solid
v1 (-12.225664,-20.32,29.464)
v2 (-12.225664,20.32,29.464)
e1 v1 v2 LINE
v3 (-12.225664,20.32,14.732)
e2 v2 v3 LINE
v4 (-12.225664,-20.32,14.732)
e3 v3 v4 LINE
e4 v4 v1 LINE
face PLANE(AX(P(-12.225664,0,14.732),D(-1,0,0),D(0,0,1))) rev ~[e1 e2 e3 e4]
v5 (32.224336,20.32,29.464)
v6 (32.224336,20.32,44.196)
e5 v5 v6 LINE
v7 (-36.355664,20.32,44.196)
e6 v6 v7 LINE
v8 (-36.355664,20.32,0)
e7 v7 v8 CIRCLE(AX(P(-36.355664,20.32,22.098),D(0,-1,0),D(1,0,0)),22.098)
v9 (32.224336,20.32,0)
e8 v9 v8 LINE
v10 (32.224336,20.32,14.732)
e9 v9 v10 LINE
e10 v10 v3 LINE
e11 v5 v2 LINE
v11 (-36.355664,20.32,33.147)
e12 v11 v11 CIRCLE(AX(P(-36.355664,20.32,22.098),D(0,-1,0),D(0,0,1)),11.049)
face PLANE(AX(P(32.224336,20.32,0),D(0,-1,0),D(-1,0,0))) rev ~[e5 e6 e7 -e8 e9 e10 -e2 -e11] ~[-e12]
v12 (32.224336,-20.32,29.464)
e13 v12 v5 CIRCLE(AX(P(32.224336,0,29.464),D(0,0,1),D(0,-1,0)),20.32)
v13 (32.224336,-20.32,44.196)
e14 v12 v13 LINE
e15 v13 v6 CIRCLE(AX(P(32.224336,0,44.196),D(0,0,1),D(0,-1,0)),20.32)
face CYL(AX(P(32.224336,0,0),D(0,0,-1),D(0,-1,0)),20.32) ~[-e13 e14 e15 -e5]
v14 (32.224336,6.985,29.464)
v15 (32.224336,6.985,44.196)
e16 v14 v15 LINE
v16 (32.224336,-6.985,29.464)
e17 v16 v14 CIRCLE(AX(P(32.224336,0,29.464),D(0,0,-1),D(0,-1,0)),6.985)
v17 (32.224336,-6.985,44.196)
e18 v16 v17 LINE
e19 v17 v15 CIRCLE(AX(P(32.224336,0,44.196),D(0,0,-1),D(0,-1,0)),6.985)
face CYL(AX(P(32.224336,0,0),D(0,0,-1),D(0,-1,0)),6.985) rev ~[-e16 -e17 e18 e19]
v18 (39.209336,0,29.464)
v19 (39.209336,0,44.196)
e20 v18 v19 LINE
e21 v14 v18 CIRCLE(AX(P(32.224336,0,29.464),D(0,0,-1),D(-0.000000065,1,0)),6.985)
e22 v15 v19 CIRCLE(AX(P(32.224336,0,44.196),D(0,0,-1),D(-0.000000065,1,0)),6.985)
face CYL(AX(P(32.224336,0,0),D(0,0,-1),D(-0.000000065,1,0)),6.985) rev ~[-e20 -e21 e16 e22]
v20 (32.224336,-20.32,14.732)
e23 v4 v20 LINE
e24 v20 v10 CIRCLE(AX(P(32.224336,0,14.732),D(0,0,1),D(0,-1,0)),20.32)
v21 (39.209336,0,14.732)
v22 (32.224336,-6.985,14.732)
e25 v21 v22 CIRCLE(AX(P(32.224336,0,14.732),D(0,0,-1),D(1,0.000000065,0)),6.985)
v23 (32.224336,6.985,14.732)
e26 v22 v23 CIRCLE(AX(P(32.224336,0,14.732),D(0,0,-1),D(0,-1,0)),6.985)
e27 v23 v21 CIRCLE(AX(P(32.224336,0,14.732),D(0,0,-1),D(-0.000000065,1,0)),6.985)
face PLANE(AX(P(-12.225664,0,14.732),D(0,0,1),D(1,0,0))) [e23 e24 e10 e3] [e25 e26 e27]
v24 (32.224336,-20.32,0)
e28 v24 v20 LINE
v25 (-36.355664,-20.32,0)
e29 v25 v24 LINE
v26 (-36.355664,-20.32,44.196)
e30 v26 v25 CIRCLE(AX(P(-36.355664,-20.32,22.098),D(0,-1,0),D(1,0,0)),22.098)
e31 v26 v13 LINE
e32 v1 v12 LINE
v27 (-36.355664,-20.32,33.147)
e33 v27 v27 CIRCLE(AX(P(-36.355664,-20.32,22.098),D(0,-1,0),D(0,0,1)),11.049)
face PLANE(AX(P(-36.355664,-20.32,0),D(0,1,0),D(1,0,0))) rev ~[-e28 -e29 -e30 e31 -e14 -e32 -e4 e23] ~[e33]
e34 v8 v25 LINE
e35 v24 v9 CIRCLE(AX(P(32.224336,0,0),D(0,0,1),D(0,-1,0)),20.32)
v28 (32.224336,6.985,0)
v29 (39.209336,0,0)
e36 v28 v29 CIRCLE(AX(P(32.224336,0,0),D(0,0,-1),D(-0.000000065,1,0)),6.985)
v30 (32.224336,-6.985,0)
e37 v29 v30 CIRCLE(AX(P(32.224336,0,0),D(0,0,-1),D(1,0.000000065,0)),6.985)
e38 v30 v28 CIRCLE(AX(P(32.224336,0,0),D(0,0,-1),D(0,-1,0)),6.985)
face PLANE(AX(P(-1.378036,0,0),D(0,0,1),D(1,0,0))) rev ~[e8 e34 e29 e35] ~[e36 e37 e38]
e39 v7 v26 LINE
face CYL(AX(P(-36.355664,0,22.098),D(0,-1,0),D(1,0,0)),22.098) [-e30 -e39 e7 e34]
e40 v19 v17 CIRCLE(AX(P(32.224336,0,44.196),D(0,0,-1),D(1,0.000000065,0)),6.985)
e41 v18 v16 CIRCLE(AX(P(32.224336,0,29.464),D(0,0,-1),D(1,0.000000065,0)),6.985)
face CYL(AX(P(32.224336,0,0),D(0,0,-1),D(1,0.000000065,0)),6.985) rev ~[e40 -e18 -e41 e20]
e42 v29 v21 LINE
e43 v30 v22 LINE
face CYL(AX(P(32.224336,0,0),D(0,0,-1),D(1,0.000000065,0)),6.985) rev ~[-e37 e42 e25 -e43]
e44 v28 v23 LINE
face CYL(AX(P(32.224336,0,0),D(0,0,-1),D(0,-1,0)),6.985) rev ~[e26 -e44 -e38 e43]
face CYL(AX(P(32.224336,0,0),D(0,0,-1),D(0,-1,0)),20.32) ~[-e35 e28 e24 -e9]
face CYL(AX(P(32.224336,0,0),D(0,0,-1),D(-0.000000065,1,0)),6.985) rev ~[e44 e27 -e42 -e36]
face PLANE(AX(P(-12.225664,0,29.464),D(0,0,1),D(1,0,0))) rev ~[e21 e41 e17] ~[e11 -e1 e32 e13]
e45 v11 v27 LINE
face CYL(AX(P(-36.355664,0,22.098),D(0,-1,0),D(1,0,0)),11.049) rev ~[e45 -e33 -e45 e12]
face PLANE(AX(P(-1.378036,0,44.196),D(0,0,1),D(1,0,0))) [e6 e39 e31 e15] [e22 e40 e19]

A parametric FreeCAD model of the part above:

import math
import FreeCAD as App
import Part
import Sketcher
Q = App.Units.Quantity


def add_polygon(sketch, points):
    """Adds a closed chain of lines whose ends are joined by coincident constraints."""
    first, n = sketch.GeometryCount, len(points)
    for a, b in zip(points, points[1:] + points[:1]):
        sketch.addGeometry(Part.LineSegment(App.Vector(*a, 0), App.Vector(*b, 0)), False)
    for i in range(n):
        sketch.addConstraint(Sketcher.Constraint("Coincident", first + i, 2, first + (i + 1) % n, 1))

doc = App.newDocument("Part")
params = doc.addObject("Spreadsheet::Sheet", "Params")
for row, (alias, value) in enumerate([
    ("sketch1_radius", "0.8 in"),
    ("sketch1_width", "2.7 in"),
    ("sketch1_radius2", "0.275 in"),
    ("pad1_length", "1.74 in"),
    ("sketch2_diameter", "0.87 in"),
    ("sketch2_width", "2.55 in"),
    ("sketch2_height", "0.58 in"),
    ("pocket1_length", "2 in"),
    ("sketch3_diameter", "1.74 in"),
    ("sketch3_diameter2", "0.87 in"),
    ("pad2_length", "1.6 in"),
], start=1):
    params.set(f"A{row}", alias)
    params.set(f"B{row}", "=" + value)
    params.setAlias(f"B{row}", alias)

body = doc.addObject("PartDesign::Body", "Body")

sketch1 = doc.addObject("Sketcher::SketchObject", "Sketch")
body.addObject(sketch1)
sketch1.AttachmentSupport = (doc.XY_Plane, [""])
sketch1.MapMode = "FlatFace"
sketch1.addGeometry([
    Part.LineSegment(App.Vector(32, 20, 0), App.Vector(-36, 20, 0)),
    Part.LineSegment(App.Vector(-36, 20, 0), App.Vector(-36, -20, 0)),
    Part.LineSegment(App.Vector(-36, -20, 0), App.Vector(32, -20, 0)),
    Part.ArcOfCircle(Part.Circle(App.Vector(32, 0, 0), App.Vector(0, 0, 1), 20), math.radians(-90), math.radians(90)),
    Part.ArcOfCircle(Part.Circle(App.Vector(32, 0, 0), App.Vector(0, 0, 1), 7), math.radians(90), math.radians(270)),
    Part.ArcOfCircle(Part.Circle(App.Vector(32, 0, 0), App.Vector(0, 0, 1), 7), math.radians(0), math.radians(90)),
    Part.ArcOfCircle(Part.Circle(App.Vector(32, 0, 0), App.Vector(0, 0, 1), 7), math.radians(-90), math.radians(0)),
], False)
sketch1.addConstraint([
    Sketcher.Constraint("Coincident", 0, 2, 1, 1),
    Sketcher.Constraint("Coincident", 1, 2, 2, 1),
    Sketcher.Constraint("Tangent", 2, 2, 3, 1),
    Sketcher.Constraint("Tangent", 3, 2, 0, 1),
    Sketcher.Constraint("Tangent", 4, 1, 5, 2),
    Sketcher.Constraint("Tangent", 5, 1, 6, 2),
    Sketcher.Constraint("Tangent", 6, 1, 4, 2),
    Sketcher.Constraint("Horizontal", 0),
    Sketcher.Constraint("Vertical", 1),
    Sketcher.Constraint("Horizontal", 2),
    Sketcher.Constraint("Coincident", 4, 3, 3, 3),
    Sketcher.Constraint("Symmetric", 4, 1, 6, 1, -1),
    Sketcher.Constraint("PointOnObject", 5, 1, -1),
    Sketcher.Constraint("Vertical", 3, 2, 4, 1),
    Sketcher.Constraint("Radius", 3, Q("0.8 in")),
    Sketcher.Constraint("DistanceX", 0, 2, 0, 1, Q("2.7 in")),
    Sketcher.Constraint("Radius", 4, Q("0.275 in")),
    Sketcher.Constraint("DistanceX", -1, 1, 3, 3, Q("32.224336 mm")),
])
sketch1.setExpression("Constraints[14]", "Params.sketch1_radius")
sketch1.setExpression("Constraints[15]", "Params.sketch1_width")
sketch1.setExpression("Constraints[16]", "Params.sketch1_radius2")
pad1 = doc.addObject("PartDesign::Pad", "Pad")
body.addObject(pad1)
pad1.Profile = sketch1
pad1.setExpression("Length", "Params.pad1_length")

sketch2 = doc.addObject("Sketcher::SketchObject", "Sketch001")
body.addObject(sketch2)
sketch2.AttachmentSupport = (doc.XZ_Plane, [""])
sketch2.MapMode = "FlatFace"
add_polygon(sketch2, [(-12, 29), (-12, 15), (53, 15), (53, 29)])
sketch2.addGeometry(Part.Circle(App.Vector(-36, 22, 0), App.Vector(0, 0, 1), 11), False)
sketch2.addConstraint([
    Sketcher.Constraint("Vertical", 0),
    Sketcher.Constraint("Horizontal", 1),
    Sketcher.Constraint("Vertical", 2),
    Sketcher.Constraint("Horizontal", 3),
    Sketcher.Constraint("Diameter", 4, Q("0.87 in")),
    Sketcher.Constraint("DistanceX", 1, 1, 1, 2, Q("2.55 in")),
    Sketcher.Constraint("DistanceY", 0, 2, 0, 1, Q("0.58 in")),
    Sketcher.Constraint("DistanceX", 4, 3, 1, 2, Q("3.5 in")),
    Sketcher.Constraint("DistanceY", -1, 1, 4, 3, Q("0.87 in")),
    Sketcher.Constraint("DistanceY", -1, 1, 0, 2, Q("0.58 in")),
    Sketcher.Constraint("DistanceX", 4, 3, -1, 1, Q("36.355664 mm")),
])
sketch2.setExpression("Constraints[8]", "Params.sketch2_diameter")
sketch2.setExpression("Constraints[9]", "Params.sketch2_width")
sketch2.setExpression("Constraints[10]", "Params.sketch2_height")
pocket1 = doc.addObject("PartDesign::Pocket", "Pocket")
body.addObject(pocket1)
pocket1.Profile = sketch2
pocket1.setExpression("Length", "Params.pocket1_length")
pocket1.Midplane = True

sketch3 = doc.addObject("Sketcher::SketchObject", "Sketch002")
body.addObject(sketch3)
sketch3.AttachmentSupport = (doc.XZ_Plane, [""])
sketch3.MapMode = "FlatFace"
sketch3.addGeometry([
    Part.Circle(App.Vector(-36, 22, 0), App.Vector(0, 0, 1), 22),
    Part.Circle(App.Vector(-36, 22, 0), App.Vector(0, 0, 1), 11),
], False)
sketch3.addConstraint([
    Sketcher.Constraint("Coincident", 1, 3, 0, 3),
    Sketcher.Constraint("Diameter", 0, Q("1.74 in")),
    Sketcher.Constraint("Diameter", 1, Q("0.87 in")),
    Sketcher.Constraint("DistanceY", -1, 1, 0, 3, Q("0.87 in")),
    Sketcher.Constraint("DistanceX", 0, 3, -1, 1, Q("36.355664 mm")),
])
sketch3.setExpression("Constraints[1]", "Params.sketch3_diameter")
sketch3.setExpression("Constraints[2]", "Params.sketch3_diameter2")
pad2 = doc.addObject("PartDesign::Pad", "Pad001")
body.addObject(pad2)
pad2.Profile = sketch3
pad2.setExpression("Length", "Params.pad2_length")
pad2.Midplane = True

doc.recompute()
